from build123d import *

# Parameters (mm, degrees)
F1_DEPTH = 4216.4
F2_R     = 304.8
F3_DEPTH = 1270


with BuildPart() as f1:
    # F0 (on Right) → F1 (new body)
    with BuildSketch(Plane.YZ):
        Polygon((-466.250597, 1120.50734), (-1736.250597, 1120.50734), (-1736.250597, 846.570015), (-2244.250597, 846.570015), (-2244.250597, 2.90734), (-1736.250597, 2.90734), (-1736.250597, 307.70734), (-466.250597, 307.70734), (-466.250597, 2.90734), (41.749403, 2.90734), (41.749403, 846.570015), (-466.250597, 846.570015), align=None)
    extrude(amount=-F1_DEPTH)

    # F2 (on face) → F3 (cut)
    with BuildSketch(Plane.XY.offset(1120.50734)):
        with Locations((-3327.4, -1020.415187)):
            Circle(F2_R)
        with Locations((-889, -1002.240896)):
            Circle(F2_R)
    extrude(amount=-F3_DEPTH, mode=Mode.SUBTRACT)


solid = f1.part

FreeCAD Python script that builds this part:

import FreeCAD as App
import Part
import Sketcher

V = App.Vector
Q = App.Units.Quantity


def add_polygon(sketch, points):
    """Adds a closed chain of lines whose ends are joined by coincident constraints."""
    first, n = sketch.GeometryCount, len(points)
    for a, b in zip(points, points[1:] + points[:1]):
        sketch.addGeometry(Part.LineSegment(App.Vector(*a, 0), App.Vector(*b, 0)), False)
    for i in range(n):
        sketch.addConstraint(Sketcher.Constraint("Coincident", first + i, 2, first + (i + 1) % n, 1))

doc = App.newDocument("Part")
body = doc.addObject("PartDesign::Body", "Body")

# Sketch on YZ plane
sketch1 = body.newObject("Sketcher::SketchObject", "Sketch")
sketch1.AttachmentSupport = (doc.getObject("YZ_Plane"), [""])
sketch1.MapMode = "FlatFace"
add_polygon(sketch1, [(-466, 1121), (-1736, 1121), (-1736, 847), (-2244, 847), (-2244, 3), (-1736, 3), (-1736, 308), (-466, 308), (-466, 3), (42, 3), (42, 847), (-466, 847)])  # lines 0-11
sketch1.addConstraint([
    Sketcher.Constraint("Horizontal", 0),
    Sketcher.Constraint("Vertical", 1),
    Sketcher.Constraint("Horizontal", 2),
    Sketcher.Constraint("Vertical", 3),
    Sketcher.Constraint("Horizontal", 4),
    Sketcher.Constraint("Vertical", 5),
    Sketcher.Constraint("Horizontal", 6),
    Sketcher.Constraint("Vertical", 7),
    Sketcher.Constraint("Horizontal", 8),
    Sketcher.Constraint("Vertical", 9),
    Sketcher.Constraint("Horizontal", 10),
    Sketcher.Constraint("Vertical", 11),
    Sketcher.Constraint("Horizontal", 4, 2, 7, 2),
    Sketcher.Constraint("Horizontal", 2, 2, 9, 2),
    Sketcher.Constraint("Vertical", 1, 2, 4, 2),
    Sketcher.Constraint("Vertical", 7, 2, 10, 2),
    Sketcher.Constraint("Equal", 4, 8),
    Sketcher.Constraint("DistanceX", 0, 2, 0, 1, Q("50 in")),
    Sketcher.Constraint("DistanceX", 2, 2, 2, 1, Q("20 in")),
    Sketcher.Constraint("DistanceY", 5, 1, 5, 2, Q("12 in")),
    Sketcher.Constraint("DistanceY", 3, 2, 0, 2, Q("44 in")),
    Sketcher.Constraint("DistanceY", 1, 2, 1, 1, 273.937325),
    Sketcher.Constraint("DistanceY", -1, 1, 0, 2, 1120.50734),
    Sketcher.Constraint("DistanceX", 0, 2, -1, 1, 1736.250597),
])
pad1 = body.newObject("PartDesign::Pad", "Pad")
pad1.Profile = sketch1
pad1.Length = Q("166 in")
pad1.Reversed = True

# Sketch on XY plane
sketch2 = body.newObject("Sketcher::SketchObject", "Sketch001")
sketch2.AttachmentSupport = (doc.getObject("XY_Plane"), [""])
sketch2.MapMode = "FlatFace"
sketch2.AttachmentOffset = App.Placement(V(0, 0, 1120.50734), App.Rotation())
sketch2.addGeometry([
    Part.Circle(V(-3327, -1020, 0), V(0, 0, 1), 305),
    Part.Circle(V(-889, -1002, 0), V(0, 0, 1), 305),
], False)
sketch2.addConstraint([
    Sketcher.Constraint("Equal", 0, 1),
    Sketcher.Constraint("Diameter", 0, Q("24 in")),
    Sketcher.Constraint("DistanceX", 0, 3, -1, 1, Q("131 in")),
    Sketcher.Constraint("DistanceX", 1, 3, -1, 1, Q("35 in")),
    Sketcher.Constraint("DistanceY", 0, 3, 1, 3, 18.174291),
    Sketcher.Constraint("DistanceY", 0, 3, -1, 1, 1020.415187),
])
pocket1 = body.newObject("PartDesign::Pocket", "Pocket")
pocket1.Profile = sketch2
pocket1.Length = Q("50 in")

doc.recompute()
